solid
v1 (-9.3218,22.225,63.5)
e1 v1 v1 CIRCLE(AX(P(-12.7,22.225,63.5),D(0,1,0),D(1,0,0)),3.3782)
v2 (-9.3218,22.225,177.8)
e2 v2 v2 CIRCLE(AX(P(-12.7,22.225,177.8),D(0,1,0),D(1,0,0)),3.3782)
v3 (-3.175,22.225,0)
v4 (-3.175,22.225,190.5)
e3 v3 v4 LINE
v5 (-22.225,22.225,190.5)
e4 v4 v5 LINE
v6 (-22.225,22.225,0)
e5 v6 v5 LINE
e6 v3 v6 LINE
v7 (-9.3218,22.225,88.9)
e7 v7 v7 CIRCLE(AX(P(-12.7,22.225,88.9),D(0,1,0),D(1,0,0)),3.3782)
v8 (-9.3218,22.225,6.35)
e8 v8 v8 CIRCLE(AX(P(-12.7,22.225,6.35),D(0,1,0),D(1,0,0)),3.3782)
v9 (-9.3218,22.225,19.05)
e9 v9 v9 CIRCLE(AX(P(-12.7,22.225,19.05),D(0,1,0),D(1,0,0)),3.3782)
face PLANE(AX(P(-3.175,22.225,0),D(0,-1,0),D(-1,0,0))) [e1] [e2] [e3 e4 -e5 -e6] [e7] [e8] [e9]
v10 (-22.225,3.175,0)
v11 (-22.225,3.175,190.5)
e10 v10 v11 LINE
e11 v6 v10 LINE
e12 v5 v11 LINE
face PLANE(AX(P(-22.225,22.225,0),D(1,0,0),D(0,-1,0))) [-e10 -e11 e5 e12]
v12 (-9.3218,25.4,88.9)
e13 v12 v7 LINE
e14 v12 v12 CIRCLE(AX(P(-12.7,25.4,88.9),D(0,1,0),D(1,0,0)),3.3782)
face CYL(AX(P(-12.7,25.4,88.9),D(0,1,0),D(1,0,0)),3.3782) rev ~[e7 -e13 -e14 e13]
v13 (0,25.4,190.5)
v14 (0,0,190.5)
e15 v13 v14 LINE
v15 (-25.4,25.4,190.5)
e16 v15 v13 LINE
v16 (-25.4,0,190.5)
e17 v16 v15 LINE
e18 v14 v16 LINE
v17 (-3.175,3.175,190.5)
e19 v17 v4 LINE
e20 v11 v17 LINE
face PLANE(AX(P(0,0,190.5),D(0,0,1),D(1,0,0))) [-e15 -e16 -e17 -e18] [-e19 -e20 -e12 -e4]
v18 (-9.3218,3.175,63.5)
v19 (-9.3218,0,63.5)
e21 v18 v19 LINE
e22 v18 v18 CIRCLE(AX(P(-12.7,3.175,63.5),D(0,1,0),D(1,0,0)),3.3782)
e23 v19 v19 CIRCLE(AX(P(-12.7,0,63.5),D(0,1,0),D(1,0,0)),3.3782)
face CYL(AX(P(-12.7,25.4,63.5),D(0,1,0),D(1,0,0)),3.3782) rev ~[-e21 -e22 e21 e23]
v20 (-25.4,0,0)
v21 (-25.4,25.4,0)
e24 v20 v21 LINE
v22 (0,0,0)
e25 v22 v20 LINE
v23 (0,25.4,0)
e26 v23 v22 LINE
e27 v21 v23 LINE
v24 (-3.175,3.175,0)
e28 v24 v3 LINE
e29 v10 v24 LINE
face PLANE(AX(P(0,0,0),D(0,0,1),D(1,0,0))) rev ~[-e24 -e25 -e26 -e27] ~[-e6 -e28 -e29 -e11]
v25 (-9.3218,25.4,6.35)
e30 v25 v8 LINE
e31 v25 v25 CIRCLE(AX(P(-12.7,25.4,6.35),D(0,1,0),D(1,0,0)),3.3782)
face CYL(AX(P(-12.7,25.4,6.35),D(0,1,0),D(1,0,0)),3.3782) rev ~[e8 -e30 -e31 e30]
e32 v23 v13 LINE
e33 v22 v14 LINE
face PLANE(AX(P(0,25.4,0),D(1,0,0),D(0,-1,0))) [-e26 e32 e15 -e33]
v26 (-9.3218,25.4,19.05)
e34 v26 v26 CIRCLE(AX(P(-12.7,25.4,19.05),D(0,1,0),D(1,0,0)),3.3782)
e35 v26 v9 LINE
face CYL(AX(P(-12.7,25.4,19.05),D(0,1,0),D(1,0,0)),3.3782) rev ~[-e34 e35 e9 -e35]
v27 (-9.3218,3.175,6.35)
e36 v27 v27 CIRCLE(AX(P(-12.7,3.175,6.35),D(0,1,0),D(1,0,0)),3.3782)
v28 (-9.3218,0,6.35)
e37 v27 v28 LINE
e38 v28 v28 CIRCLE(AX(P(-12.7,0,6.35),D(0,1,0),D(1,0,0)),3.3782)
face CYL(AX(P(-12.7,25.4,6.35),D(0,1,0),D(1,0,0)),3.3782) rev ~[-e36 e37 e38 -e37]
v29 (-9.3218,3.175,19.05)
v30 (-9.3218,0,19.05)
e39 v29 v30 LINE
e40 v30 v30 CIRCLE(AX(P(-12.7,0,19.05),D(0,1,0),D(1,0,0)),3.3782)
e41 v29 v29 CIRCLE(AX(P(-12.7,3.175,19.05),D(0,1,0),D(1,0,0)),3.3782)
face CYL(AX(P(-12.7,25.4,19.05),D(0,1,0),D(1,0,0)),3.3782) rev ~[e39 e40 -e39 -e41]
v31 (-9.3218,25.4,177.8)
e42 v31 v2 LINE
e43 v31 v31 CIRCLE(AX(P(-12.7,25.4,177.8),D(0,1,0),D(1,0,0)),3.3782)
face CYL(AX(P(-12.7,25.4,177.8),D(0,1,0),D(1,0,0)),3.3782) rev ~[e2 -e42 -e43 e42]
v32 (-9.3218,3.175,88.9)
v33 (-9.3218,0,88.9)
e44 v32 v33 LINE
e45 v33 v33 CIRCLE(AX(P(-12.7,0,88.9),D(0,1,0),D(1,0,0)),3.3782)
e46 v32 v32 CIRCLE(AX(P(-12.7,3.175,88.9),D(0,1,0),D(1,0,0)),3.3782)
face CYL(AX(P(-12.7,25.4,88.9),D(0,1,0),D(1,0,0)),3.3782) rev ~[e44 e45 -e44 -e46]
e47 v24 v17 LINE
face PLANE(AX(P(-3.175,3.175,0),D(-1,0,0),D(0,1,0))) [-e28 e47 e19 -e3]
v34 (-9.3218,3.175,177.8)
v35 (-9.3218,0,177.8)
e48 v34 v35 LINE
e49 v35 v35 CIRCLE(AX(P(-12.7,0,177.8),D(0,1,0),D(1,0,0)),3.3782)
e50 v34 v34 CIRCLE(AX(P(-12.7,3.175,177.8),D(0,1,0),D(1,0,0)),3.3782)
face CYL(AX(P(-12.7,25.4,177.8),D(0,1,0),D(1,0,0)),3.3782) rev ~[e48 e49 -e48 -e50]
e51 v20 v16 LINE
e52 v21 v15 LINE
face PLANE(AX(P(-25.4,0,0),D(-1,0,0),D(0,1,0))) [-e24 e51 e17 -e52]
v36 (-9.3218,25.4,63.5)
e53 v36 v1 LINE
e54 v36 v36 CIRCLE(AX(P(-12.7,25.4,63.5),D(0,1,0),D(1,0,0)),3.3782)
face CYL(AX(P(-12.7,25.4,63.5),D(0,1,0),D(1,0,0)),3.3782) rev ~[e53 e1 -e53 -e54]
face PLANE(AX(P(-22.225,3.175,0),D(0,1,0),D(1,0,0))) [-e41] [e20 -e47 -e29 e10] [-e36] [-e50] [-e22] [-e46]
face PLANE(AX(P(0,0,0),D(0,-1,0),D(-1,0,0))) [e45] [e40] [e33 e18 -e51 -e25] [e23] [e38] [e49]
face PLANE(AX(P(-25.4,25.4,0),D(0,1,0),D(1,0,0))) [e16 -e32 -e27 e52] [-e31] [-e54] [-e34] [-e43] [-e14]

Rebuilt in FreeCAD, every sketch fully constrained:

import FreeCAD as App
import Part
import Sketcher
from FreeCAD import Vector
Q = App.Units.Quantity

doc = App.newDocument("Part")
body = doc.addObject("PartDesign::Body", "Body")

sketch1 = body.newObject("Sketcher::SketchObject", "Sketch")
sketch1.AttachmentSupport = (doc.getObject("XY_Plane"), [""])
sketch1.MapMode = "FlatFace"
sketch1.addGeometry(Part.LineSegment(Vector(-25, 0, 0), Vector(0, 0, 0)), False)
sketch1.addGeometry(Part.LineSegment(Vector(0, 0, 0), Vector(0, 25, 0)), False)
sketch1.addGeometry(Part.LineSegment(Vector(0, 25, 0), Vector(-25, 25, 0)), False)
sketch1.addGeometry(Part.LineSegment(Vector(-25, 25, 0), Vector(-25, 0, 0)), False)
sketch1.addGeometry(Part.LineSegment(Vector(-22, 22, 0), Vector(-3, 22, 0)), False)
sketch1.addGeometry(Part.LineSegment(Vector(-3, 22, 0), Vector(-3, 3, 0)), False)
sketch1.addGeometry(Part.LineSegment(Vector(-3, 3, 0), Vector(-22, 3, 0)), False)
sketch1.addGeometry(Part.LineSegment(Vector(-22, 3, 0), Vector(-22, 22, 0)), False)
sketch1.addConstraint(Sketcher.Constraint("Coincident", 0, 2, 1, 1))
sketch1.addConstraint(Sketcher.Constraint("Coincident", 1, 2, 2, 1))
sketch1.addConstraint(Sketcher.Constraint("Coincident", 2, 2, 3, 1))
sketch1.addConstraint(Sketcher.Constraint("Coincident", 3, 2, 0, 1))
sketch1.addConstraint(Sketcher.Constraint("Coincident", 4, 2, 5, 1))
sketch1.addConstraint(Sketcher.Constraint("Coincident", 5, 2, 6, 1))
sketch1.addConstraint(Sketcher.Constraint("Coincident", 6, 2, 7, 1))
sketch1.addConstraint(Sketcher.Constraint("Coincident", 7, 2, 4, 1))
sketch1.addConstraint(Sketcher.Constraint("Horizontal", 0))
sketch1.addConstraint(Sketcher.Constraint("Vertical", 1))
sketch1.addConstraint(Sketcher.Constraint("Horizontal", 2))
sketch1.addConstraint(Sketcher.Constraint("Vertical", 3))
sketch1.addConstraint(Sketcher.Constraint("Horizontal", 4))
sketch1.addConstraint(Sketcher.Constraint("Vertical", 5))
sketch1.addConstraint(Sketcher.Constraint("Horizontal", 6))
sketch1.addConstraint(Sketcher.Constraint("Vertical", 7))
sketch1.addConstraint(Sketcher.Constraint("Coincident", 0, 2, -1, 1))
sketch1.addConstraint(Sketcher.Constraint("Equal", 2, 1))
sketch1.addConstraint(Sketcher.Constraint("Equal", 6, 5))
sketch1.addConstraint(Sketcher.Constraint("DistanceX", 0, 1, 0, 2, Q("1 in")))
sketch1.addConstraint(Sketcher.Constraint("DistanceX", 4, 2, -1, 1, Q("0.125 in")))
sketch1.addConstraint(Sketcher.Constraint("DistanceY", -1, 1, 5, 2, Q("0.125 in")))
sketch1.addConstraint(Sketcher.Constraint("DistanceY", 4, 2, 1, 2, Q("0.125 in")))
pad1 = body.newObject("PartDesign::Pad", "Pad")
pad1.Profile = sketch1
pad1.Length = Q("7.5 in")

sketch2 = body.newObject("Sketcher::SketchObject", "Sketch001")
sketch2.AttachmentSupport = (doc.getObject("XZ_Plane"), [""])
sketch2.MapMode = "FlatFace"
sketch2.AttachmentOffset = App.Placement(Vector(0, 0, -1 * 25.4), App.Rotation())
sketch2.addGeometry(Part.Circle(Vector(-12.7, 19.1, 0), Vector(0, 0, 1), 3.4), False)
sketch2.addGeometry(Part.Circle(Vector(-12.7, 6.3, 0), Vector(0, 0, 1), 3.4), False)
sketch2.addConstraint(Sketcher.Constraint("Equal", 0, 1))
sketch2.addConstraint(Sketcher.Constraint("Vertical", 0, 3, 1, 3))
sketch2.addConstraint(Sketcher.Constraint("Diameter", 0, Q("0.266 in")))
sketch2.addConstraint(Sketcher.Constraint("DistanceX", 0, 3, -1, 1, Q("0.5 in")))
sketch2.addConstraint(Sketcher.Constraint("DistanceY", 1, 3, 0, 3, Q("0.5 in")))
sketch2.addConstraint(Sketcher.Constraint("DistanceY", -1, 1, 0, 3, Q("0.75 in")))
pocket1 = body.newObject("PartDesign::Pocket", "Pocket")
pocket1.Profile = sketch2
pocket1.Length = Q("1 in")
pocket1.Reversed = True

sketch3 = body.newObject("Sketcher::SketchObject", "Sketch002")
sketch3.AttachmentSupport = (doc.getObject("XZ_Plane"), [""])
sketch3.MapMode = "FlatFace"
sketch3.AttachmentOffset = App.Placement(Vector(0, 0, -1 * 25.4), App.Rotation())
sketch3.addGeometry(Part.Circle(Vector(-12.7, 203.2, 0), Vector(0, 0, 1), 3.4), False)
sketch3.addGeometry(Part.Circle(Vector(-12.7, 177.8, 0), Vector(0, 0, 1), 3.4), False)
sketch3.addConstraint(Sketcher.Constraint("Equal", 0, 1))
sketch3.addConstraint(Sketcher.Constraint("Vertical", 0, 3, 1, 3))
sketch3.addConstraint(Sketcher.Constraint("Diameter", 0, Q("0.266 in")))
sketch3.addConstraint(Sketcher.Constraint("DistanceY", -1, 1, 0, 3, Q("8 in")))
sketch3.addConstraint(Sketcher.Constraint("DistanceY", -1, 1, 1, 3, Q("7 in")))
sketch3.addConstraint(Sketcher.Constraint("DistanceX", 0, 3, -1, 1, Q("0.5 in")))
pocket2 = body.newObject("PartDesign::Pocket", "Pocket001")
pocket2.Profile = sketch3
pocket2.Length = Q("1 in")
pocket2.Reversed = True

sketch4 = body.newObject("Sketcher::SketchObject", "Sketch003")
sketch4.AttachmentSupport = (doc.getObject("XZ_Plane"), [""])
sketch4.MapMode = "FlatFace"
sketch4.AttachmentOffset = App.Placement(Vector(0, 0, -1 * 25.4), App.Rotation())
sketch4.addGeometry(Part.Circle(Vector(-12.7, 63.5, 0), Vector(0, 0, 1), 3.4), False)
sketch4.addGeometry(Part.Circle(Vector(-12.7, 88.9, 0), Vector(0, 0, 1), 3.4), False)
sketch4.addConstraint(Sketcher.Constraint("Equal", 0, 1))
sketch4.addConstraint(Sketcher.Constraint("Vertical", 0, 3, 1, 3))
sketch4.addConstraint(Sketcher.Constraint("Diameter", 0, Q("0.266 in")))
sketch4.addConstraint(Sketcher.Constraint("DistanceY", 0, 3, 1, 3, Q("1 in")))
sketch4.addConstraint(Sketcher.Constraint("DistanceX", 0, 3, -1, 1, Q("0.5 in")))
sketch4.addConstraint(Sketcher.Constraint("DistanceY", -1, 1, 0, 3, Q("2.5 in")))
pocket3 = body.newObject("PartDesign::Pocket", "Pocket002")
pocket3.Profile = sketch4
pocket3.Length = Q("1 in")
pocket3.Reversed = True

doc.recompute()
